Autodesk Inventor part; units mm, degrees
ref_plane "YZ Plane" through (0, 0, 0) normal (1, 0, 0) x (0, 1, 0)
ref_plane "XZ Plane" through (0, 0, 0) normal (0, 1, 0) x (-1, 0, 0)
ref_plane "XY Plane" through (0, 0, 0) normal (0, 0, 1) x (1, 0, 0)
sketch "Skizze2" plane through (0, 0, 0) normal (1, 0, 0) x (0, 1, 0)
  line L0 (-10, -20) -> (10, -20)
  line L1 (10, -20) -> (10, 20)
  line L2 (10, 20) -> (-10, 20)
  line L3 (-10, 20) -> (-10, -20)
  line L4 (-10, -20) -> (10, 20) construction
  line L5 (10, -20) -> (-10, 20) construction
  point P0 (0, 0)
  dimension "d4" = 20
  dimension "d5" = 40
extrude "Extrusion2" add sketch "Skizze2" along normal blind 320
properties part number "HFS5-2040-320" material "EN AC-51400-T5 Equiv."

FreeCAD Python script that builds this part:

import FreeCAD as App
import Part
import Sketcher

V = App.Vector
Q = App.Units.Quantity

doc = App.newDocument("Part")
body = doc.addObject("PartDesign::Body", "Body")

# Sketch on YZ plane
sketch1 = body.newObject("Sketcher::SketchObject", "Sketch")
sketch1.AttachmentSupport = (doc.getObject("YZ_Plane"), [""])
sketch1.MapMode = "FlatFace"
sketch1.addGeometry([
    Part.LineSegment(V(-10, 20, 0), V(-10, -20, 0)),
    Part.LineSegment(V(-10, -20, 0), V(10, -20, 0)),
    Part.LineSegment(V(10, -20, 0), V(10, 20, 0)),
    Part.LineSegment(V(10, 20, 0), V(-10, 20, 0)),
], False)
sketch1.addConstraint([
    Sketcher.Constraint("Coincident", 0, 2, 1, 1),
    Sketcher.Constraint("Coincident", 1, 2, 2, 1),
    Sketcher.Constraint("Coincident", 2, 2, 3, 1),
    Sketcher.Constraint("Coincident", 3, 2, 0, 1),
    Sketcher.Constraint("Vertical", 0),
    Sketcher.Constraint("Horizontal", 1),
    Sketcher.Constraint("Vertical", 2),
    Sketcher.Constraint("Horizontal", 3),
    Sketcher.Constraint("Symmetric", 0, 2, 2, 2, -1, 1),
    Sketcher.Constraint("DistanceX", 1, 1, 1, 2, Q("20 mm")),
    Sketcher.Constraint("DistanceY", 0, 2, 0, 1, Q("40 mm")),
])
pad1 = body.newObject("PartDesign::Pad", "Pad")
pad1.Profile = sketch1
pad1.Length = 320

doc.recompute()
